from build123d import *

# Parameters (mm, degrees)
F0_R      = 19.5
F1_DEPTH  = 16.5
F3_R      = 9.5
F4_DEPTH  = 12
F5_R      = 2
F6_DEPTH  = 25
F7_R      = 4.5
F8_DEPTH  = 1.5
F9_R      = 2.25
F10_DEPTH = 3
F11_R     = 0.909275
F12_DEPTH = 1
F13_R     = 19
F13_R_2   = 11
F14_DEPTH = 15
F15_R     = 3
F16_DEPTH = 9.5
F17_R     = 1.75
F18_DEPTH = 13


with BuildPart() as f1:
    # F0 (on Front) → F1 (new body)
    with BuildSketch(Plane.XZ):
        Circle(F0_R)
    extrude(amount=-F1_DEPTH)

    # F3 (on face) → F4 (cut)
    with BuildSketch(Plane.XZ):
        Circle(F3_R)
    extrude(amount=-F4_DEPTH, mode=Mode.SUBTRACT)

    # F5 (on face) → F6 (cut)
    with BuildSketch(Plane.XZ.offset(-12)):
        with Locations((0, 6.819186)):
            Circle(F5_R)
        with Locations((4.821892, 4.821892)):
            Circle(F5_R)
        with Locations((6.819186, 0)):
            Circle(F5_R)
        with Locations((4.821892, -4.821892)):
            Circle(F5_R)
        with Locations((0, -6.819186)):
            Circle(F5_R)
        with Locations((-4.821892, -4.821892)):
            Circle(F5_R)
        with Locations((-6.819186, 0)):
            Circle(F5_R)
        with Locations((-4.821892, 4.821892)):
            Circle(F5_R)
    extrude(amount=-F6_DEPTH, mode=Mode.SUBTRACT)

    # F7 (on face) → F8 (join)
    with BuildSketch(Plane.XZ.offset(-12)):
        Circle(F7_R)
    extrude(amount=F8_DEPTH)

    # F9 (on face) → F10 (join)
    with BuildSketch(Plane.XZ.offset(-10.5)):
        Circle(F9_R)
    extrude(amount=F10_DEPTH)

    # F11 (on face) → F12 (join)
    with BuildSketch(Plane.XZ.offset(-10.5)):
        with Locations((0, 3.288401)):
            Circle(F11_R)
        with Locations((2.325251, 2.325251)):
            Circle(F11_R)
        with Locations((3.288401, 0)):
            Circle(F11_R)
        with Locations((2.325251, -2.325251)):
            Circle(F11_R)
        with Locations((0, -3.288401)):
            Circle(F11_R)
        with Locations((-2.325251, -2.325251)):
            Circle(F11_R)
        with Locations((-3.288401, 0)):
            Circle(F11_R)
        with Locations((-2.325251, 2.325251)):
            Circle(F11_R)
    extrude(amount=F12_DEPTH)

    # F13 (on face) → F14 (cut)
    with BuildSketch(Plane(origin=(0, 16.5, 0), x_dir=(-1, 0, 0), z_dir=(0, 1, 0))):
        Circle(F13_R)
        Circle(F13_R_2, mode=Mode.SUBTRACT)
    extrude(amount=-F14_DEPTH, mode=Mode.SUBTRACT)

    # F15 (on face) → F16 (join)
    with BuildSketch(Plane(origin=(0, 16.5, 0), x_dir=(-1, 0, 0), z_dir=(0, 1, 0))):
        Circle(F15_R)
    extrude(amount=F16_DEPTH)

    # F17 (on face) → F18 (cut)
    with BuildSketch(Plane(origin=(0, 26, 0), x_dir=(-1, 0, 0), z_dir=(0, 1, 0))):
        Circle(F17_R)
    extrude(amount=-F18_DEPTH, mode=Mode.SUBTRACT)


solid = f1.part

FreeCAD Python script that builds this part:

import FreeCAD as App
import Part
import Sketcher

doc = App.newDocument("Part")
body = doc.addObject("PartDesign::Body", "Body")

sketch1 = doc.addObject("Sketcher::SketchObject", "Sketch")
body.addObject(sketch1)
sketch1.AttachmentSupport = (doc.XZ_Plane, [""])
sketch1.MapMode = "FlatFace"
sketch1.addGeometry(Part.Circle(App.Vector(0, 0, 0), App.Vector(0, 0, 1), 20), False)
sketch1.addConstraint(Sketcher.Constraint("Coincident", 0, 3, -1, 1))
sketch1.addConstraint(Sketcher.Constraint("Diameter", 0, 39.0))
pad1 = doc.addObject("PartDesign::Pad", "Pad")
body.addObject(pad1)
pad1.Profile = sketch1
pad1.Length = 16.5
pad1.Reversed = True

sketch2 = doc.addObject("Sketcher::SketchObject", "Sketch001")
body.addObject(sketch2)
sketch2.AttachmentSupport = (doc.XZ_Plane, [""])
sketch2.MapMode = "FlatFace"
sketch2.addGeometry(Part.Circle(App.Vector(0, 0, 0), App.Vector(0, 0, 1), 10), False)
sketch2.addConstraint(Sketcher.Constraint("Coincident", 0, 3, -1, 1))
sketch2.addConstraint(Sketcher.Constraint("Diameter", 0, 19.0))
pocket1 = doc.addObject("PartDesign::Pocket", "Pocket")
body.addObject(pocket1)
pocket1.Profile = sketch2
pocket1.Length = 12

sketch3 = doc.addObject("Sketcher::SketchObject", "Sketch002")
body.addObject(sketch3)
sketch3.AttachmentSupport = (doc.XZ_Plane, [""])
sketch3.MapMode = "FlatFace"
sketch3.AttachmentOffset = App.Placement(App.Vector(0, 0, -12), App.Rotation())
sketch3.addGeometry(Part.Circle(App.Vector(0, 6.8, 0), App.Vector(0, 0, 1), 2), False)
sketch3.addGeometry(Part.Circle(App.Vector(4.8, 4.8, 0), App.Vector(0, 0, 1), 2), False)
sketch3.addGeometry(Part.Circle(App.Vector(6.8, 0, 0), App.Vector(0, 0, 1), 2), False)
sketch3.addGeometry(Part.Circle(App.Vector(4.8, -4.8, 0), App.Vector(0, 0, 1), 2), False)
sketch3.addGeometry(Part.Circle(App.Vector(0, -6.8, 0), App.Vector(0, 0, 1), 2), False)
sketch3.addGeometry(Part.Circle(App.Vector(-4.8, -4.8, 0), App.Vector(0, 0, 1), 2), False)
sketch3.addGeometry(Part.Circle(App.Vector(-6.8, 0, 0), App.Vector(0, 0, 1), 2), False)
sketch3.addGeometry(Part.Circle(App.Vector(-4.8, 4.8, 0), App.Vector(0, 0, 1), 2), False)
sketch3.addConstraint(Sketcher.Constraint("Equal", 0, 1))
sketch3.addConstraint(Sketcher.Constraint("Equal", 1, 2))
sketch3.addConstraint(Sketcher.Constraint("Equal", 2, 3))
sketch3.addConstraint(Sketcher.Constraint("Equal", 3, 4))
sketch3.addConstraint(Sketcher.Constraint("Equal", 4, 5))
sketch3.addConstraint(Sketcher.Constraint("Equal", 5, 6))
sketch3.addConstraint(Sketcher.Constraint("Equal", 6, 7))
sketch3.addConstraint(Sketcher.Constraint("Symmetric", 0, 3, 4, 3, -1, 1))
sketch3.addConstraint(Sketcher.Constraint("Symmetric", 1, 3, 5, 3, -1, 1))
sketch3.addConstraint(Sketcher.Constraint("Symmetric", 2, 3, 6, 3, -1, 1))
sketch3.addConstraint(Sketcher.Constraint("Symmetric", 3, 3, 7, 3, -1, 1))
sketch3.addConstraint(Sketcher.Constraint("Symmetric", 3, 3, 5, 3, -2))
sketch3.addConstraint(Sketcher.Constraint("PointOnObject", 0, 3, -2))
sketch3.addConstraint(Sketcher.Constraint("PointOnObject", 2, 3, -1))
sketch3.addConstraint(Sketcher.Constraint("Diameter", 0, 4.0))
sketch3.addConstraint(Sketcher.Constraint("DistanceY", -1, 1, 0, 3, 6.819186))
sketch3.addConstraint(Sketcher.Constraint("DistanceX", -1, 1, 1, 3, 4.821892))
sketch3.addConstraint(Sketcher.Constraint("DistanceY", -1, 1, 1, 3, 4.821892))
sketch3.addConstraint(Sketcher.Constraint("DistanceX", -1, 1, 2, 3, 6.819186))
pocket2 = doc.addObject("PartDesign::Pocket", "Pocket001")
body.addObject(pocket2)
pocket2.Profile = sketch3
pocket2.Length = 25

sketch4 = doc.addObject("Sketcher::SketchObject", "Sketch003")
body.addObject(sketch4)
sketch4.AttachmentSupport = (doc.XZ_Plane, [""])
sketch4.MapMode = "FlatFace"
sketch4.AttachmentOffset = App.Placement(App.Vector(0, 0, -12), App.Rotation())
sketch4.addGeometry(Part.Circle(App.Vector(0, 0, 0), App.Vector(0, 0, 1), 4.5), False)
sketch4.addConstraint(Sketcher.Constraint("Coincident", 0, 3, -1, 1))
sketch4.addConstraint(Sketcher.Constraint("Diameter", 0, 9.0))
pad2 = doc.addObject("PartDesign::Pad", "Pad001")
body.addObject(pad2)
pad2.Profile = sketch4
pad2.Length = 1.5

sketch5 = doc.addObject("Sketcher::SketchObject", "Sketch004")
body.addObject(sketch5)
sketch5.AttachmentSupport = (doc.XZ_Plane, [""])
sketch5.MapMode = "FlatFace"
sketch5.AttachmentOffset = App.Placement(App.Vector(0, 0, -10.5), App.Rotation())
sketch5.addGeometry(Part.Circle(App.Vector(0, 0, 0), App.Vector(0, 0, 1), 2.2), False)
sketch5.addConstraint(Sketcher.Constraint("Coincident", 0, 3, -1, 1))
sketch5.addConstraint(Sketcher.Constraint("Diameter", 0, 4.5))
pad3 = doc.addObject("PartDesign::Pad", "Pad002")
body.addObject(pad3)
pad3.Profile = sketch5
pad3.Length = 3

sketch6 = doc.addObject("Sketcher::SketchObject", "Sketch005")
body.addObject(sketch6)
sketch6.AttachmentSupport = (doc.XZ_Plane, [""])
sketch6.MapMode = "FlatFace"
sketch6.AttachmentOffset = App.Placement(App.Vector(0, 0, -10.5), App.Rotation())
sketch6.addGeometry(Part.Circle(App.Vector(0, 3.3, 0), App.Vector(0, 0, 1), 0.9), False)
sketch6.addGeometry(Part.Circle(App.Vector(2.3, 2.3, 0), App.Vector(0, 0, 1), 0.9), False)
sketch6.addGeometry(Part.Circle(App.Vector(3.3, 0, 0), App.Vector(0, 0, 1), 0.9), False)
sketch6.addGeometry(Part.Circle(App.Vector(2.3, -2.3, 0), App.Vector(0, 0, 1), 0.9), False)
sketch6.addGeometry(Part.Circle(App.Vector(0, -3.3, 0), App.Vector(0, 0, 1), 0.9), False)
sketch6.addGeometry(Part.Circle(App.Vector(-2.3, -2.3, 0), App.Vector(0, 0, 1), 0.9), False)
sketch6.addGeometry(Part.Circle(App.Vector(-3.3, 0, 0), App.Vector(0, 0, 1), 0.9), False)
sketch6.addGeometry(Part.Circle(App.Vector(-2.3, 2.3, 0), App.Vector(0, 0, 1), 0.9), False)
sketch6.addConstraint(Sketcher.Constraint("Equal", 0, 1))
sketch6.addConstraint(Sketcher.Constraint("Equal", 1, 2))
sketch6.addConstraint(Sketcher.Constraint("Equal", 2, 3))
sketch6.addConstraint(Sketcher.Constraint("Equal", 3, 4))
sketch6.addConstraint(Sketcher.Constraint("Equal", 4, 5))
sketch6.addConstraint(Sketcher.Constraint("Equal", 5, 6))
sketch6.addConstraint(Sketcher.Constraint("Equal", 6, 7))
sketch6.addConstraint(Sketcher.Constraint("Symmetric", 0, 3, 4, 3, -1, 1))
sketch6.addConstraint(Sketcher.Constraint("Symmetric", 1, 3, 5, 3, -1, 1))
sketch6.addConstraint(Sketcher.Constraint("Symmetric", 2, 3, 6, 3, -1, 1))
sketch6.addConstraint(Sketcher.Constraint("Symmetric", 3, 3, 7, 3, -1, 1))
sketch6.addConstraint(Sketcher.Constraint("Symmetric", 3, 3, 5, 3, -2))
sketch6.addConstraint(Sketcher.Constraint("PointOnObject", 0, 3, -2))
sketch6.addConstraint(Sketcher.Constraint("PointOnObject", 2, 3, -1))
sketch6.addConstraint(Sketcher.Constraint("Diameter", 0, 1.81855))
sketch6.addConstraint(Sketcher.Constraint("DistanceY", -1, 1, 0, 3, 3.288401))
sketch6.addConstraint(Sketcher.Constraint("DistanceX", -1, 1, 2, 3, 3.288401))
sketch6.addConstraint(Sketcher.Constraint("DistanceX", -1, 1, 1, 3, 2.325251))
sketch6.addConstraint(Sketcher.Constraint("DistanceY", -1, 1, 1, 3, 2.325251))
pad4 = doc.addObject("PartDesign::Pad", "Pad003")
body.addObject(pad4)
pad4.Profile = sketch6
pad4.Length = 1

sketch7 = doc.addObject("Sketcher::SketchObject", "Sketch006")
body.addObject(sketch7)
sketch7.AttachmentSupport = (doc.XZ_Plane, [""])
sketch7.MapMode = "FlatFace"
sketch7.AttachmentOffset = App.Placement(App.Vector(0, 0, -16.5), App.Rotation())
sketch7.addGeometry(Part.Circle(App.Vector(0, 0, 0), App.Vector(0, 0, 1), 19), False)
sketch7.addGeometry(Part.Circle(App.Vector(0, 0, 0), App.Vector(0, 0, 1), 11), False)
sketch7.addConstraint(Sketcher.Constraint("Coincident", 0, 3, -1, 1))
sketch7.addConstraint(Sketcher.Constraint("Coincident", 1, 3, -1, 1))
sketch7.addConstraint(Sketcher.Constraint("Diameter", 0, 38.0))
sketch7.addConstraint(Sketcher.Constraint("Diameter", 1, 22.0))
pocket3 = doc.addObject("PartDesign::Pocket", "Pocket002")
body.addObject(pocket3)
pocket3.Profile = sketch7
pocket3.Length = 15
pocket3.Reversed = True

sketch8 = doc.addObject("Sketcher::SketchObject", "Sketch007")
body.addObject(sketch8)
sketch8.AttachmentSupport = (doc.XZ_Plane, [""])
sketch8.MapMode = "FlatFace"
sketch8.AttachmentOffset = App.Placement(App.Vector(0, 0, -16.5), App.Rotation())
sketch8.addGeometry(Part.Circle(App.Vector(0, 0, 0), App.Vector(0, 0, 1), 3), False)
sketch8.addConstraint(Sketcher.Constraint("Coincident", 0, 3, -1, 1))
sketch8.addConstraint(Sketcher.Constraint("Diameter", 0, 6.0))
pad5 = doc.addObject("PartDesign::Pad", "Pad004")
body.addObject(pad5)
pad5.Profile = sketch8
pad5.Length = 9.5
pad5.Reversed = True

sketch9 = doc.addObject("Sketcher::SketchObject", "Sketch008")
body.addObject(sketch9)
sketch9.AttachmentSupport = (doc.XZ_Plane, [""])
sketch9.MapMode = "FlatFace"
sketch9.AttachmentOffset = App.Placement(App.Vector(0, 0, -26), App.Rotation())
sketch9.addGeometry(Part.Circle(App.Vector(0, 0, 0), App.Vector(0, 0, 1), 1.8), False)
sketch9.addConstraint(Sketcher.Constraint("Coincident", 0, 3, -1, 1))
sketch9.addConstraint(Sketcher.Constraint("Diameter", 0, 3.5))
pocket4 = doc.addObject("PartDesign::Pocket", "Pocket003")
body.addObject(pocket4)
pocket4.Profile = sketch9
pocket4.Length = 13
pocket4.Reversed = True

doc.recompute()
